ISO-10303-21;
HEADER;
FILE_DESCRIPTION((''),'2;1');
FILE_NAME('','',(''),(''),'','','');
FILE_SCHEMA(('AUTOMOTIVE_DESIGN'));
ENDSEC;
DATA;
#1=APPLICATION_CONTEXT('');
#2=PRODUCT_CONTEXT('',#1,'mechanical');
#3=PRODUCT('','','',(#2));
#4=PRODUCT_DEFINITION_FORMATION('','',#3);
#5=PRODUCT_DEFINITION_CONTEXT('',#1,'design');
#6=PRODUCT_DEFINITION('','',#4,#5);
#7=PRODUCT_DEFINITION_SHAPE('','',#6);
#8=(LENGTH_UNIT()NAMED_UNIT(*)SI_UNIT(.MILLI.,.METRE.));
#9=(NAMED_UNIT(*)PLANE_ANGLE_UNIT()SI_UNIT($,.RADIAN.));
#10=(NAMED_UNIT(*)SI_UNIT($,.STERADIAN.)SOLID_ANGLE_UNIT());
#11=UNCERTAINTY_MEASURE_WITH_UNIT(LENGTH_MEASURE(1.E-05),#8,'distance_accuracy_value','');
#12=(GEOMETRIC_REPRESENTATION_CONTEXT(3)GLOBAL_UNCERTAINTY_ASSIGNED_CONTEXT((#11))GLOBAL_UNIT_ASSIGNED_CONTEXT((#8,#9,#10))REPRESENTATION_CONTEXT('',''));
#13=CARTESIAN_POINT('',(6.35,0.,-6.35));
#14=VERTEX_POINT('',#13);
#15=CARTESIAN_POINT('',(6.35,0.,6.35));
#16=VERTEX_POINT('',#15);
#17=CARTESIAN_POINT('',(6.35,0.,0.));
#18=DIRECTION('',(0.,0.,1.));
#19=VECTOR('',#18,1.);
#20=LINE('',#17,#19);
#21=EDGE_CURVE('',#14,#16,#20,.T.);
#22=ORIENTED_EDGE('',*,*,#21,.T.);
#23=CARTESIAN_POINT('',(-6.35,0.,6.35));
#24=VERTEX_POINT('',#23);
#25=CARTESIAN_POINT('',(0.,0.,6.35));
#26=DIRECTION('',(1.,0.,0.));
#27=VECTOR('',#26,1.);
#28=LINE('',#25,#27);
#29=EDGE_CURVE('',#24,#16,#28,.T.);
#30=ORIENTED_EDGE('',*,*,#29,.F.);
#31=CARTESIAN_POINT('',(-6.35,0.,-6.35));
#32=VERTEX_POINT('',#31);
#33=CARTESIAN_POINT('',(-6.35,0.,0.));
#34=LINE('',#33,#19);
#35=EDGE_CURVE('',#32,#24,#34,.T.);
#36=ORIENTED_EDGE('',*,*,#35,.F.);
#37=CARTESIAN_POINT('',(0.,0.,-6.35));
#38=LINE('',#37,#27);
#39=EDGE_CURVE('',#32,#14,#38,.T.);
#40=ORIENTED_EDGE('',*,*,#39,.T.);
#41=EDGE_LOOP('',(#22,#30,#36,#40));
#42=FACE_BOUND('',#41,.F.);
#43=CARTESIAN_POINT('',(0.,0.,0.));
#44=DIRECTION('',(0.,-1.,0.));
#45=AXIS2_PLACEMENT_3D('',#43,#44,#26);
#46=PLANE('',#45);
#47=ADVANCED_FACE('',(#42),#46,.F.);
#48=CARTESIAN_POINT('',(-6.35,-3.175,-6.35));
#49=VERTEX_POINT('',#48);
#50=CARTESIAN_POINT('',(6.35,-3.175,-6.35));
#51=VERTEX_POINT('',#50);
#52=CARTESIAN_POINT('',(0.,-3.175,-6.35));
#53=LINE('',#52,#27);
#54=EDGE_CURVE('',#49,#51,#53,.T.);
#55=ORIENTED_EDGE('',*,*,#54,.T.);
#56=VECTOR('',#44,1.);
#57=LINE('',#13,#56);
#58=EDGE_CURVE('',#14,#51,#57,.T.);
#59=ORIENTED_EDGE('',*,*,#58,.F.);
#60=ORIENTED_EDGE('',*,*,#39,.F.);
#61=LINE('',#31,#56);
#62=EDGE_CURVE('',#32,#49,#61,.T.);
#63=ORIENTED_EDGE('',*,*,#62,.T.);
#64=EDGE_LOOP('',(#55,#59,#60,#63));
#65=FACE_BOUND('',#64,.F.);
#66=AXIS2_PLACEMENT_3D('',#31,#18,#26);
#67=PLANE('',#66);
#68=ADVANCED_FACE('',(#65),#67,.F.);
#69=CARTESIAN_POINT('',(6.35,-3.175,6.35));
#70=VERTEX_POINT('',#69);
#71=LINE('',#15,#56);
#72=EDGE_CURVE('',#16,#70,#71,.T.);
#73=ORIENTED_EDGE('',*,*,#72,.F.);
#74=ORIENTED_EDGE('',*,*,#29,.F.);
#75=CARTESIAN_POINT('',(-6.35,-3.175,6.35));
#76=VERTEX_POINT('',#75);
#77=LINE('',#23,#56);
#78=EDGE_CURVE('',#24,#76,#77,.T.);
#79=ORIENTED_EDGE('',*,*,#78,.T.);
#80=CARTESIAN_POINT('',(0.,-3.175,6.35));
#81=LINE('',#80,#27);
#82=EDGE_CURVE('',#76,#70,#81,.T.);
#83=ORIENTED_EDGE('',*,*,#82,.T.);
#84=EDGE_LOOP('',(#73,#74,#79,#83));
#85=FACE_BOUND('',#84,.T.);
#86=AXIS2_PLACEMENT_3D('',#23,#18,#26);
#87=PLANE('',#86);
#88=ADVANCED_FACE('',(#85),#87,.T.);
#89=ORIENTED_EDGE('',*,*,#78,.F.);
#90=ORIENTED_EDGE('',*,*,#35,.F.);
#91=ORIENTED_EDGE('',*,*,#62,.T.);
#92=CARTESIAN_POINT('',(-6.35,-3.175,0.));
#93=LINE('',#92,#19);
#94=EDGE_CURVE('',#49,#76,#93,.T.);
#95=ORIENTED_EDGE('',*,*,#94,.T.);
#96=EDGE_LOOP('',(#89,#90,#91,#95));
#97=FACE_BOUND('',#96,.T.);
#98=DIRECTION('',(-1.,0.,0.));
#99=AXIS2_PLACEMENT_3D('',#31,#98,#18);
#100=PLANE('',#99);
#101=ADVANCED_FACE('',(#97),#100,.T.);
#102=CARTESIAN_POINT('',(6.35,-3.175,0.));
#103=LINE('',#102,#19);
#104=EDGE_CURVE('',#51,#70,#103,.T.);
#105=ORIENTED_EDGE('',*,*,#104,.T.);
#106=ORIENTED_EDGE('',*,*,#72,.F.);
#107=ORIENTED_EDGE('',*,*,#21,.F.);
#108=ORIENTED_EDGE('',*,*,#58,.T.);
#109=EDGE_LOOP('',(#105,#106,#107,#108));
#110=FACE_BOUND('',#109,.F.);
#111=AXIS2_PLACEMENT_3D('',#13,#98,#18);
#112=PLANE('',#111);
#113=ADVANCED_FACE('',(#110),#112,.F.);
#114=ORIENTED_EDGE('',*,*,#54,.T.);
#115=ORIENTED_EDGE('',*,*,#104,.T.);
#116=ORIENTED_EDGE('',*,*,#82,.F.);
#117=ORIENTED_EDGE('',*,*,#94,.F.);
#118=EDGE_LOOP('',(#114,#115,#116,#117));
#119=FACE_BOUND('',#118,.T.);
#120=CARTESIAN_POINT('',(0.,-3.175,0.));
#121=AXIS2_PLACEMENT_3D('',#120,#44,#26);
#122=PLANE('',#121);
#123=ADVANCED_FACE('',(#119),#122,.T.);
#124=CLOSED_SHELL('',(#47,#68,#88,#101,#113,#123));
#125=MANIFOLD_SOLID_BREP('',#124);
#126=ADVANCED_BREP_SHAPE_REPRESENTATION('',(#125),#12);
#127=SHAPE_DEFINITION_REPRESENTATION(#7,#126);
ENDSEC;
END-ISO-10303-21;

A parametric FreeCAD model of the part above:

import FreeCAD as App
import Part
import Sketcher
from FreeCAD import Vector
Q = App.Units.Quantity

doc = App.newDocument("Part")
body = doc.addObject("PartDesign::Body", "Body")

# Sketch on XZ plane
sketch1 = body.newObject("Sketcher::SketchObject", "Sketch")
sketch1.AttachmentSupport = (doc.getObject("XZ_Plane"), [""])
sketch1.MapMode = "FlatFace"
sketch1.addGeometry(Part.LineSegment(Vector(-6.35, 6.35, 0), Vector(-6.35, -6.35, 0)), False)
sketch1.addGeometry(Part.LineSegment(Vector(-6.35, -6.35, 0), Vector(6.35, -6.35, 0)), False)
sketch1.addGeometry(Part.LineSegment(Vector(6.35, -6.35, 0), Vector(6.35, 6.35, 0)), False)
sketch1.addGeometry(Part.LineSegment(Vector(6.35, 6.35, 0), Vector(-6.35, 6.35, 0)), False)
sketch1.addConstraint(Sketcher.Constraint("Coincident", 0, 2, 1, 1))
sketch1.addConstraint(Sketcher.Constraint("Coincident", 1, 2, 2, 1))
sketch1.addConstraint(Sketcher.Constraint("Coincident", 2, 2, 3, 1))
sketch1.addConstraint(Sketcher.Constraint("Coincident", 3, 2, 0, 1))
sketch1.addConstraint(Sketcher.Constraint("Vertical", 0))
sketch1.addConstraint(Sketcher.Constraint("Horizontal", 1))
sketch1.addConstraint(Sketcher.Constraint("Vertical", 2))
sketch1.addConstraint(Sketcher.Constraint("Horizontal", 3))
sketch1.addConstraint(Sketcher.Constraint("Symmetric", 0, 2, 2, 2, -1, 1))
sketch1.addConstraint(Sketcher.Constraint("Equal", 3, 0))
sketch1.addConstraint(Sketcher.Constraint("DistanceX", 1, 1, 1, 2, Q("0.5 in")))
pad1 = body.newObject("PartDesign::Pad", "Pad")
pad1.Profile = sketch1
pad1.Length = Q("0.125 in")

doc.recompute()
